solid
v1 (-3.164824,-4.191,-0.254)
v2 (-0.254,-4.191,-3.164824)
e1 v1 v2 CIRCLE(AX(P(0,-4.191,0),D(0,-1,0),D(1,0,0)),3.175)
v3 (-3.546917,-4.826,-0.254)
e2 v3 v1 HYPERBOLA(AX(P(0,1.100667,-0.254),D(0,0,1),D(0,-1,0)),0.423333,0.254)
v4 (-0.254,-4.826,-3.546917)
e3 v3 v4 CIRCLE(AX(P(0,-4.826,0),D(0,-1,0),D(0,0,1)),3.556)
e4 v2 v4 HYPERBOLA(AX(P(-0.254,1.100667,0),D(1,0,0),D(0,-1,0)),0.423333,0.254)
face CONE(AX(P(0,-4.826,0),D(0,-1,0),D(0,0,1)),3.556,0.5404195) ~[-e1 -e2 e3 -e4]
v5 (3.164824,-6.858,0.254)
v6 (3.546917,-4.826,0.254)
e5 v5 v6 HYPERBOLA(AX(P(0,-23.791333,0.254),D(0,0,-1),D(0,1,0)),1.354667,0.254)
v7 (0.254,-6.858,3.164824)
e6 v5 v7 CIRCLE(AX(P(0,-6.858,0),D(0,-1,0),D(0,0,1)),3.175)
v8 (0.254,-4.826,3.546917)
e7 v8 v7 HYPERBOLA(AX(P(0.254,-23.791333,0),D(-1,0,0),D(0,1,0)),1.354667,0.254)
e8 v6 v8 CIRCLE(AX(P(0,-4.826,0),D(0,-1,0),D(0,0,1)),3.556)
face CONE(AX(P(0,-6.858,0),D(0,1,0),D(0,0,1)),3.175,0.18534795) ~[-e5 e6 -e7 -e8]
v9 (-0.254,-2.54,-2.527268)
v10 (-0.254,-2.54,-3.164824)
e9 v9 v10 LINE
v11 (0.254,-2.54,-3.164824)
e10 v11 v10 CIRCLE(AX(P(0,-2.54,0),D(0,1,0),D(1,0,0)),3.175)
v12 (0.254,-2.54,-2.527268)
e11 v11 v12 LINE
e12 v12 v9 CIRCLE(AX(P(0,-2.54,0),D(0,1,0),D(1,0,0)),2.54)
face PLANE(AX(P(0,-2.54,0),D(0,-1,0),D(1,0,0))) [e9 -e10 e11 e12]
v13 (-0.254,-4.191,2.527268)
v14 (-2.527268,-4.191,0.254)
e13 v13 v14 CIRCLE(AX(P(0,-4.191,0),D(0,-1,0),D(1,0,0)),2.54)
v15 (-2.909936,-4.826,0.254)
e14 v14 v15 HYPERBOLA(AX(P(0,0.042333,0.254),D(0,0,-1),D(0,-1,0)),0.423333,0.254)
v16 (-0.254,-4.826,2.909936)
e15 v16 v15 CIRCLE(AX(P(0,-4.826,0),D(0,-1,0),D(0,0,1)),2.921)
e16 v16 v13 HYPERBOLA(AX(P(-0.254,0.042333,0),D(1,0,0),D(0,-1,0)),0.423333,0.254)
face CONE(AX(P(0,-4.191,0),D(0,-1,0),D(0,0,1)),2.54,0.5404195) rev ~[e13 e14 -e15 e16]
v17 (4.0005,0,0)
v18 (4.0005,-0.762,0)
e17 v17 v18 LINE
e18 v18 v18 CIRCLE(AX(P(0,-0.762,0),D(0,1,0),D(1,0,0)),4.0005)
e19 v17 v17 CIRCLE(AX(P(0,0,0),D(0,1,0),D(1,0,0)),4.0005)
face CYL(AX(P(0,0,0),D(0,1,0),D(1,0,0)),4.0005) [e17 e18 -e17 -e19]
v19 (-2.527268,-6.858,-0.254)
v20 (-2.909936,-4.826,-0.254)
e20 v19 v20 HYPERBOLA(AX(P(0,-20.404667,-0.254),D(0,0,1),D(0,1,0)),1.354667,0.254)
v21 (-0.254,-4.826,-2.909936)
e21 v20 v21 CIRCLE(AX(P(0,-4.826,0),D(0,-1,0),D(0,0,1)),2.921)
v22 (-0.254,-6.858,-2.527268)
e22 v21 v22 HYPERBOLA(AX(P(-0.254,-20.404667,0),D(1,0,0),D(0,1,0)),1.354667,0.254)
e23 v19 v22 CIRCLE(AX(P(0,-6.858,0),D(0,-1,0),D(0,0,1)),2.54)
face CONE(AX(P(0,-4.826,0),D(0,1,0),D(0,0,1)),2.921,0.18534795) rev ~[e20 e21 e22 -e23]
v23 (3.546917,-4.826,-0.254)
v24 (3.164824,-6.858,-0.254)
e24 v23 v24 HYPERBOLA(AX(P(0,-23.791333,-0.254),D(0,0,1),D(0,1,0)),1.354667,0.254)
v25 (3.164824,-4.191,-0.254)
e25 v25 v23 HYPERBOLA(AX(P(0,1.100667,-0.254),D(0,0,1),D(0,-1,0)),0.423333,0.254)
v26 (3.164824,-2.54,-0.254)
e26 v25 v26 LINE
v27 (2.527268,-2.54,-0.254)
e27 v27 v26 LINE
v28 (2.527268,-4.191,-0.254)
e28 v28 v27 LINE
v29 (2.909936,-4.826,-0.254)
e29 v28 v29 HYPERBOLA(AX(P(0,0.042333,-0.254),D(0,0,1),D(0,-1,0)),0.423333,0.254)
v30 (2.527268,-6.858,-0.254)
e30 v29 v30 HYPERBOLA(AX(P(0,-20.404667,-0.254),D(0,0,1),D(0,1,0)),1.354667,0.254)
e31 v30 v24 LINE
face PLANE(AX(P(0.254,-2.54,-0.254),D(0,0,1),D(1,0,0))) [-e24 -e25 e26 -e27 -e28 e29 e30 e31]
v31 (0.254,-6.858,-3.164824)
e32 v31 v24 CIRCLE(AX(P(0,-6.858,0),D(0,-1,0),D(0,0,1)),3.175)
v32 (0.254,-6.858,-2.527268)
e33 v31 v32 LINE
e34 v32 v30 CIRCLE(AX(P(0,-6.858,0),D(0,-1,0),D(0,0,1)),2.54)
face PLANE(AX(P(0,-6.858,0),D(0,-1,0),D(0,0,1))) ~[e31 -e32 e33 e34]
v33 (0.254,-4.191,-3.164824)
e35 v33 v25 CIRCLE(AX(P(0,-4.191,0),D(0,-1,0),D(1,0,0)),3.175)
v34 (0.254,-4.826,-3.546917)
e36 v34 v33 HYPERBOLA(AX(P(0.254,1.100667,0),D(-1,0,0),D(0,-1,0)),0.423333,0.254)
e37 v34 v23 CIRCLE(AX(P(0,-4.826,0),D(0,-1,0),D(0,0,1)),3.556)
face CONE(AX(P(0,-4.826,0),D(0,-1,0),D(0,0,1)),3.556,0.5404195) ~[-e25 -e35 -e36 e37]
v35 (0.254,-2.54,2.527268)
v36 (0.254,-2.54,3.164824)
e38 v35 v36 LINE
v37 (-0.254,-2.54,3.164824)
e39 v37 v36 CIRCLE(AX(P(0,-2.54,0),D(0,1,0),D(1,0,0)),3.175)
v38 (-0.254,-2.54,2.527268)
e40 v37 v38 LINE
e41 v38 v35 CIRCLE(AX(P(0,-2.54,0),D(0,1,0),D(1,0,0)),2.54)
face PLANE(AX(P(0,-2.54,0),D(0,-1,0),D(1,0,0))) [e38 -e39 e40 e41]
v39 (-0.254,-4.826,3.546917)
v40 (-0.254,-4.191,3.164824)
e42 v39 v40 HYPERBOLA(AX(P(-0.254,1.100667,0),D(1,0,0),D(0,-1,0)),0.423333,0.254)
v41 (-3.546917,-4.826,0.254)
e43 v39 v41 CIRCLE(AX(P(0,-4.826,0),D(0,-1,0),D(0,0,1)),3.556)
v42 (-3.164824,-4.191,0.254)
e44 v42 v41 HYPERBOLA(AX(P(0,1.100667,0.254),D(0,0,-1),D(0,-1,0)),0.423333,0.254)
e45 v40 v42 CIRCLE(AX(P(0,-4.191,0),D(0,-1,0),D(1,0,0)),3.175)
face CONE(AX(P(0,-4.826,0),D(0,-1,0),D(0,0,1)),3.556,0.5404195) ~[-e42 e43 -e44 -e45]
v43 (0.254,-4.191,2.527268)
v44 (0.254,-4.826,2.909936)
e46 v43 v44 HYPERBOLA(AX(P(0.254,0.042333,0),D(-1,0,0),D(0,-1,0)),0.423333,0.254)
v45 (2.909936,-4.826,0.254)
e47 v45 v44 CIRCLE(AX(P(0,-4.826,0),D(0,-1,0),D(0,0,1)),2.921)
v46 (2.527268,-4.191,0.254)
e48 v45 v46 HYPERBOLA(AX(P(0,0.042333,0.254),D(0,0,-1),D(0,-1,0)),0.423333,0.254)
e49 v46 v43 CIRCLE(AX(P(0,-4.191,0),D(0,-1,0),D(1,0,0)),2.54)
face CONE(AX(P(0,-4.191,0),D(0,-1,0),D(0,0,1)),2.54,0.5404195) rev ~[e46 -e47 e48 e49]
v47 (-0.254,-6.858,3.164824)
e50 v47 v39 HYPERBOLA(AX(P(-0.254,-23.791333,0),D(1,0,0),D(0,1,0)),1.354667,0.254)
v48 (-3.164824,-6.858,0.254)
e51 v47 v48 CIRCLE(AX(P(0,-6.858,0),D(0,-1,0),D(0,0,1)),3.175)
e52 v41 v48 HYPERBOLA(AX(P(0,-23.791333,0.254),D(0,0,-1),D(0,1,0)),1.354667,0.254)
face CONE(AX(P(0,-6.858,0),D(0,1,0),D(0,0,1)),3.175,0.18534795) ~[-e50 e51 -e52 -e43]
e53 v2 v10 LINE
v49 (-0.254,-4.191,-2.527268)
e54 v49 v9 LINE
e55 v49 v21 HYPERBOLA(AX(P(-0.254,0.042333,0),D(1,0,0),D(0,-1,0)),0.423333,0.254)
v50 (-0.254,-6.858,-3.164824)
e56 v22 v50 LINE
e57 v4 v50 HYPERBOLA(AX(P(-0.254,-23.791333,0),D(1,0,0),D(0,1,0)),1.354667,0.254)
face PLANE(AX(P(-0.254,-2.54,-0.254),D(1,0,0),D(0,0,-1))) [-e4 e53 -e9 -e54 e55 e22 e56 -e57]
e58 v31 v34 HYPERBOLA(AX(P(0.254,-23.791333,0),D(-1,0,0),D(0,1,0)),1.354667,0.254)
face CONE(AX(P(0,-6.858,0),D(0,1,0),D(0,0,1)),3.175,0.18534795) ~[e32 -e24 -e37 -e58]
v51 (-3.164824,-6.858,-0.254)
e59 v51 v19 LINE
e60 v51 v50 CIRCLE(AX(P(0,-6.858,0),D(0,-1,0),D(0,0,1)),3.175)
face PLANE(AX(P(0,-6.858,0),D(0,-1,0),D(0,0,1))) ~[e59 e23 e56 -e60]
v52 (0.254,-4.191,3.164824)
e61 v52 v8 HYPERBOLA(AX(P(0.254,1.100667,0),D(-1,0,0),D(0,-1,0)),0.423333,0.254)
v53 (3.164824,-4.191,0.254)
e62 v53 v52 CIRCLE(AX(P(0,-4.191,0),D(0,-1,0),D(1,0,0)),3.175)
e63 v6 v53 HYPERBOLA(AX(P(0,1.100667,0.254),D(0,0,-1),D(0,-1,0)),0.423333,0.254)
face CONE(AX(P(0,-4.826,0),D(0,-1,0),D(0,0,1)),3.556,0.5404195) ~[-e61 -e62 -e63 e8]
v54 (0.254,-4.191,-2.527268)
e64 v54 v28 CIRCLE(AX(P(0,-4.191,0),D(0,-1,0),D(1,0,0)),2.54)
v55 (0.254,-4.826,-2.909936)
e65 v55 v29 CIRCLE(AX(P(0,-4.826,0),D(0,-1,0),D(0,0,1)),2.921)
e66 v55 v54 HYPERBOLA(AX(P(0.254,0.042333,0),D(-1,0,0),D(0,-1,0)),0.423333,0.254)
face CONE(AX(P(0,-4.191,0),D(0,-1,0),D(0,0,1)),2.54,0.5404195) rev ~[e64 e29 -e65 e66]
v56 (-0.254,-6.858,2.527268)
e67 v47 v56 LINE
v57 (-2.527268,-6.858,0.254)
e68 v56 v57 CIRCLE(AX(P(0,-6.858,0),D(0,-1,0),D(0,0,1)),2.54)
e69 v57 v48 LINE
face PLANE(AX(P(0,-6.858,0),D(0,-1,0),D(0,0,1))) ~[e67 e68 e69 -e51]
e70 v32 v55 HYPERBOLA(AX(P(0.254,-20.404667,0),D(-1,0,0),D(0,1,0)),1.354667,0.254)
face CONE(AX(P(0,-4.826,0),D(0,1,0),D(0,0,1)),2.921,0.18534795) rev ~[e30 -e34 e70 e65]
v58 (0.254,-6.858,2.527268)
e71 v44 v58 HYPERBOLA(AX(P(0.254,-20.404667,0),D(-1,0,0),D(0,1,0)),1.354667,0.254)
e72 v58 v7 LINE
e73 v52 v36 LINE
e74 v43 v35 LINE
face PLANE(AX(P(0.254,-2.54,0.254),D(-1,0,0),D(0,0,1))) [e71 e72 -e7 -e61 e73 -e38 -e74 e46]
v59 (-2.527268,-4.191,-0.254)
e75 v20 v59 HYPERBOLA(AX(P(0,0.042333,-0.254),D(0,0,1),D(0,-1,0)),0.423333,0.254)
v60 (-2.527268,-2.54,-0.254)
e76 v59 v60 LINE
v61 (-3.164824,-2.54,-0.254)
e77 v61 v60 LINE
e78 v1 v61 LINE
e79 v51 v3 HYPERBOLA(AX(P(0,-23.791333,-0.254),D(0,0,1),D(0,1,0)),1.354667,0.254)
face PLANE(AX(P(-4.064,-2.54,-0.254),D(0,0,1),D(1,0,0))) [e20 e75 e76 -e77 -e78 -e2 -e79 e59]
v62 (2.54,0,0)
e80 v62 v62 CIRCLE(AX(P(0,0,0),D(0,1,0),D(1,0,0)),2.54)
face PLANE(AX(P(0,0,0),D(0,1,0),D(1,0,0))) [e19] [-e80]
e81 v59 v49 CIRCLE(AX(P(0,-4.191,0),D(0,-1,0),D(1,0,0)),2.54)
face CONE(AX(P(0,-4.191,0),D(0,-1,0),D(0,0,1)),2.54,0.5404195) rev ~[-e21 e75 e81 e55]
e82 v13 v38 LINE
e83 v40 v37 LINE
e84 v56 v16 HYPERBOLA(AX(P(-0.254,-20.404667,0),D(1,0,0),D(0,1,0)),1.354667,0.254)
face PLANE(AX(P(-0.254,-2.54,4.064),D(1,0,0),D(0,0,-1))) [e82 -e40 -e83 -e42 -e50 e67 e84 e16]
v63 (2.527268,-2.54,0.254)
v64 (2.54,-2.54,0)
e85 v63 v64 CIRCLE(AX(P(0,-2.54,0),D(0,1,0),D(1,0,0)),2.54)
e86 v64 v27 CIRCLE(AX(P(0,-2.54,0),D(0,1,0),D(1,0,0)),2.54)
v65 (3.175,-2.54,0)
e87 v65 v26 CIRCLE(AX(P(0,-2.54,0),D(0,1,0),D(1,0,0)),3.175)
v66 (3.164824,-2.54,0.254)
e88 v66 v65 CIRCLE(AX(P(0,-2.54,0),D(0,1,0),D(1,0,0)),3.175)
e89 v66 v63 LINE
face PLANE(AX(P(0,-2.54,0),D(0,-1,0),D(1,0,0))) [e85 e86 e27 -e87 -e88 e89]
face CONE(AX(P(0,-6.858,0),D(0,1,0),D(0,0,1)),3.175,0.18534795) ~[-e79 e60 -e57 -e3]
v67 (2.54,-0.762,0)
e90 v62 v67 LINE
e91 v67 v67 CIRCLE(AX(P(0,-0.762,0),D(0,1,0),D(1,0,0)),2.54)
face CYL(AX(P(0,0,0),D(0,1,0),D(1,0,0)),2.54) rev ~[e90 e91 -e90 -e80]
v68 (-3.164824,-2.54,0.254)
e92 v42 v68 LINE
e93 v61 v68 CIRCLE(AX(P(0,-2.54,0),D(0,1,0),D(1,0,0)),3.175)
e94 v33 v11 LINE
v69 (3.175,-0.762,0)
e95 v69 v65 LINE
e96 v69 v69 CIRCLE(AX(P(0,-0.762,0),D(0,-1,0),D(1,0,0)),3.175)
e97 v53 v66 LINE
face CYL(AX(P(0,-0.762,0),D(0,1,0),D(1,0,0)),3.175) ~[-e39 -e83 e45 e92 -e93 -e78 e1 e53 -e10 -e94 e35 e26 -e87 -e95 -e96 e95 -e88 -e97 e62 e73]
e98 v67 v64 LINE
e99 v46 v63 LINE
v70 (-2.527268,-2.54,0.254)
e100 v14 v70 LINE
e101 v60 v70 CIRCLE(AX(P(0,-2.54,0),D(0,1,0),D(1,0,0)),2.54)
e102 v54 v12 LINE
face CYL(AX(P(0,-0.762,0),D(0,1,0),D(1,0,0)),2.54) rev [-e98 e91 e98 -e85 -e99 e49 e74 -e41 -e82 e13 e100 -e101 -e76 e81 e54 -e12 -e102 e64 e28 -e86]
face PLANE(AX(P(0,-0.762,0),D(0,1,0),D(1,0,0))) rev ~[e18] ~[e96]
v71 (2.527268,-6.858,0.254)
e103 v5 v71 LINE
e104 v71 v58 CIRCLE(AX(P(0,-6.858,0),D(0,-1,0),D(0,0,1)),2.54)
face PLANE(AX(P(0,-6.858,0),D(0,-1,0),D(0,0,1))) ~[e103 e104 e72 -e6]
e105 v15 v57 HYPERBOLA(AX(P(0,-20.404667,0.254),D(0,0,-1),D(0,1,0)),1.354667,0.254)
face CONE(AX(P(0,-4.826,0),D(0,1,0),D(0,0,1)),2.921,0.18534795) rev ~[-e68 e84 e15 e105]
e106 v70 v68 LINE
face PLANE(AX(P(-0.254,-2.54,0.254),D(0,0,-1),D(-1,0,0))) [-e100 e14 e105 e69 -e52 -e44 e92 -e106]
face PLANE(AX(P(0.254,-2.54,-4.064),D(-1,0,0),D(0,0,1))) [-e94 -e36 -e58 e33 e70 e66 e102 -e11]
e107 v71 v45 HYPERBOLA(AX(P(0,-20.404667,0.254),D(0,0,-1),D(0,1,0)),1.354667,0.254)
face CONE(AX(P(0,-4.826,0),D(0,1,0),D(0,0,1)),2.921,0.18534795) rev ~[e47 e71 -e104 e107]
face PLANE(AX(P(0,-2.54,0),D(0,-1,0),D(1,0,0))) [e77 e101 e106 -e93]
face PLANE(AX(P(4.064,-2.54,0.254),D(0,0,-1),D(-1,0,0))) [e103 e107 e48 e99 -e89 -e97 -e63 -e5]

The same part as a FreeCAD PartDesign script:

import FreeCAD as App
import Part
import Sketcher
Q = App.Units.Quantity


def add_polygon(sketch, points):
    """Adds a closed chain of lines whose ends are joined by coincident constraints."""
    first, n = sketch.GeometryCount, len(points)
    for a, b in zip(points, points[1:] + points[:1]):
        sketch.addGeometry(Part.LineSegment(App.Vector(*a, 0), App.Vector(*b, 0)), False)
    for i in range(n):
        sketch.addConstraint(Sketcher.Constraint("Coincident", first + i, 2, first + (i + 1) % n, 1))

doc = App.newDocument("Part")
params = doc.addObject("Spreadsheet::Sheet", "Params")
for row, (alias, value) in enumerate([
    ("sketch1_diameter", "0.2 in"),
    ("sketch1_diameter2", "0.315 in"),
    ("pad1_length", "0.03 in"),
    ("sketch2_diameter", "0.2 in"),
    ("sketch2_diameter2", "0.25 in"),
    ("pad2_length", "0.135 in"),
    ("sketch3_height", "0.025 in"),
    ("revolution_angle", "360 deg"),
    ("sketch4_width", "0.15 in"),
    ("sketch4_width2", "0.02 in"),
], start=1):
    params.set(f"A{row}", alias)
    params.set(f"B{row}", "=" + value)
    params.setAlias(f"B{row}", alias)

body = doc.addObject("PartDesign::Body", "Body")

# Sketch on XZ plane
sketch1 = doc.addObject("Sketcher::SketchObject", "Sketch")
body.addObject(sketch1)
sketch1.AttachmentSupport = (doc.XZ_Plane, [""])
sketch1.MapMode = "FlatFace"
sketch1.addGeometry([
    Part.Circle(App.Vector(0, 0, 0), App.Vector(0, 0, 1), 4),
    Part.Circle(App.Vector(0, 0, 0), App.Vector(0, 0, 1), 2.5),
], False)
sketch1.addConstraint([
    Sketcher.Constraint("Coincident", 0, 3, -1, 1),
    Sketcher.Constraint("Coincident", 1, 3, -1, 1),
    Sketcher.Constraint("Diameter", 1, Q("0.2 in")),
    Sketcher.Constraint("Diameter", 0, Q("0.315 in")),
])
sketch1.setExpression("Constraints[2]", "Params.sketch1_diameter")
sketch1.setExpression("Constraints[3]", "Params.sketch1_diameter2")
pad1 = doc.addObject("PartDesign::Pad", "Pad")
body.addObject(pad1)
pad1.Profile = sketch1
pad1.setExpression("Length", "Params.pad1_length")

# Sketch on XZ plane
sketch2 = doc.addObject("Sketcher::SketchObject", "Sketch001")
body.addObject(sketch2)
sketch2.AttachmentSupport = (doc.XZ_Plane, [""])
sketch2.MapMode = "FlatFace"
sketch2.AttachmentOffset = App.Placement(App.Vector(0, 0, 0.03 * 25.4), App.Rotation())
sketch2.addGeometry([
    Part.Circle(App.Vector(0, 0, 0), App.Vector(0, 0, 1), 3.2),
    Part.Circle(App.Vector(0, 0, 0), App.Vector(0, 0, 1), 2.5),
], False)
sketch2.addConstraint([
    Sketcher.Constraint("Coincident", 0, 3, -1, 1),
    Sketcher.Constraint("Coincident", 1, 3, -1, 1),
    Sketcher.Constraint("Diameter", 1, Q("0.2 in")),
    Sketcher.Constraint("Diameter", 0, Q("0.25 in")),
])
sketch2.setExpression("Constraints[2]", "Params.sketch2_diameter")
sketch2.setExpression("Constraints[3]", "Params.sketch2_diameter2")
pad2 = doc.addObject("PartDesign::Pad", "Pad001")
body.addObject(pad2)
pad2.Profile = sketch2
pad2.setExpression("Length", "Params.pad2_length")

# Sketch on YZ plane
sketch3 = doc.addObject("Sketcher::SketchObject", "Sketch002")
body.addObject(sketch3)
sketch3.AttachmentSupport = (doc.YZ_Plane, [""])
sketch3.MapMode = "FlatFace"
add_polygon(sketch3, [(-4.2, 2.5), (-4.2, 3.2), (-4.8, 3.6), (-6.9, 3.2), (-6.9, 2.5), (-4.8, 2.9)])  # lines 0-5
sketch3.addConstraint([
    Sketcher.Constraint("Vertical", 0),
    Sketcher.Constraint("Vertical", 3),
    Sketcher.Constraint("Parallel", 2, 4),
    Sketcher.Constraint("Parallel", 1, 5),
    Sketcher.Constraint("Horizontal", 0, 2, 2, 2),
    Sketcher.Constraint("Horizontal", 3, 2, 5, 2),
    Sketcher.Constraint("DistanceY", -1, 1, 3, 2, Q("0.1 in")),
    Sketcher.Constraint("DistanceY", 0, 1, 0, 2, Q("0.025 in")),
    Sketcher.Constraint("DistanceX", 1, 2, -1, 1, Q("0.19 in")),
    Sketcher.Constraint("DistanceY", -1, 1, 1, 2, Q("0.14 in")),
    Sketcher.Constraint("DistanceX", 2, 2, -1, 1, Q("0.27 in")),
    Sketcher.Constraint("DistanceX", 0, 2, -1, 1, Q("0.165 in")),
])
sketch3.setExpression("Constraints[13]", "Params.sketch3_height")
revolution = doc.addObject("PartDesign::Revolution", "Revolution")
body.addObject(revolution)
revolution.Profile = sketch3
revolution.ReferenceAxis = (sketch3, ["H_Axis"])
revolution.setExpression("Angle", "Params.revolution_angle")

# Sketch on XZ plane
sketch4 = doc.addObject("Sketcher::SketchObject", "Sketch003")
body.addObject(sketch4)
sketch4.AttachmentSupport = (doc.XZ_Plane, [""])
sketch4.MapMode = "FlatFace"
sketch4.AttachmentOffset = App.Placement(App.Vector(0, 0, 0.1 * 25.4), App.Rotation())
add_polygon(sketch4, [(-0.3, 0.3), (-4.1, 0.3), (-4.1, -0.3), (-0.3, -0.3), (-0.3, -4.1), (0.3, -4.1), (0.3, -0.3), (4.1, -0.3), (4.1, 0.3), (0.3, 0.3), (0.3, 4.1), (-0.3, 4.1)])  # lines 0-11
sketch4.addConstraint([
    Sketcher.Constraint("Horizontal", 0),
    Sketcher.Constraint("Vertical", 1),
    Sketcher.Constraint("Horizontal", 2),
    Sketcher.Constraint("Vertical", 3),
    Sketcher.Constraint("Horizontal", 4),
    Sketcher.Constraint("Vertical", 5),
    Sketcher.Constraint("Horizontal", 6),
    Sketcher.Constraint("Vertical", 7),
    Sketcher.Constraint("Horizontal", 8),
    Sketcher.Constraint("Vertical", 9),
    Sketcher.Constraint("Horizontal", 10),
    Sketcher.Constraint("Vertical", 11),
    Sketcher.Constraint("Symmetric", 0, 2, 6, 2, -1, 1),
    Sketcher.Constraint("Symmetric", 2, 2, 8, 2, -1, 1),
    Sketcher.Constraint("Symmetric", 4, 2, 10, 2, -1, 1),
    Sketcher.Constraint("Symmetric", 2, 2, 5, 2, -2),
    Sketcher.Constraint("Equal", 10, 1),
    Sketcher.Constraint("Equal", 8, 3),
    Sketcher.Constraint("DistanceX", 0, 2, 0, 1, Q("0.15 in")),
    Sketcher.Constraint("DistanceX", 4, 1, 4, 2, Q("0.02 in")),
])
sketch4.setExpression("Constraints[30]", "Params.sketch4_width")
sketch4.setExpression("Constraints[31]", "Params.sketch4_width2")
pocket1 = doc.addObject("PartDesign::Pocket", "Pocket")
body.addObject(pocket1)
pocket1.Profile = sketch4
pocket1.Type = "ThroughAll"
pocket1.Reversed = True

doc.recompute()
